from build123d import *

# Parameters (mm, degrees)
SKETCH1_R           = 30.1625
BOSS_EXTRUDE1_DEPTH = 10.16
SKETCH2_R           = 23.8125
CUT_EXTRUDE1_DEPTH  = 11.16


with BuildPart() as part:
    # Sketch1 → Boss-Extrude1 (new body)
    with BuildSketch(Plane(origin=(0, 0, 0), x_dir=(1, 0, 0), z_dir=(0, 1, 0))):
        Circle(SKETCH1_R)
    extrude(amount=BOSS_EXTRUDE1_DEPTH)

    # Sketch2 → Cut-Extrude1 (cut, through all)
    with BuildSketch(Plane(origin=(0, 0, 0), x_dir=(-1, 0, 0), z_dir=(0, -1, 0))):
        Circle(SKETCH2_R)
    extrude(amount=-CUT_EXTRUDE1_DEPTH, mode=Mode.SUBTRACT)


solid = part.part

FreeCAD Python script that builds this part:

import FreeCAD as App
import Part
import Sketcher

V = App.Vector
Q = App.Units.Quantity

doc = App.newDocument("Part")
body = doc.addObject("PartDesign::Body", "Body")

sketch1 = doc.addObject("Sketcher::SketchObject", "Sketch")
body.addObject(sketch1)
sketch1.AttachmentSupport = (doc.XZ_Plane, [""])
sketch1.MapMode = "FlatFace"
sketch1.addGeometry(Part.Circle(V(0, 0, 0), V(0, 0, 1), 30), False)
sketch1.addConstraint([
    Sketcher.Constraint("Coincident", 0, 3, -1, 1),
    Sketcher.Constraint("Diameter", 0, Q("2.375 in")),
])
pad1 = doc.addObject("PartDesign::Pad", "Pad")
body.addObject(pad1)
pad1.Profile = sketch1
pad1.Length = Q("0.4 in")
pad1.Reversed = True

sketch2 = doc.addObject("Sketcher::SketchObject", "Sketch001")
body.addObject(sketch2)
sketch2.AttachmentSupport = (doc.XZ_Plane, [""])
sketch2.MapMode = "FlatFace"
sketch2.addGeometry(Part.Circle(V(0, 0, 0), V(0, 0, 1), 24), False)
sketch2.addConstraint([
    Sketcher.Constraint("Coincident", 0, 3, -1, 1),
    Sketcher.Constraint("Diameter", 0, Q("1.875 in")),
])
pocket1 = doc.addObject("PartDesign::Pocket", "Pocket")
body.addObject(pocket1)
pocket1.Profile = sketch2
pocket1.Type = "ThroughAll"

doc.recompute()
